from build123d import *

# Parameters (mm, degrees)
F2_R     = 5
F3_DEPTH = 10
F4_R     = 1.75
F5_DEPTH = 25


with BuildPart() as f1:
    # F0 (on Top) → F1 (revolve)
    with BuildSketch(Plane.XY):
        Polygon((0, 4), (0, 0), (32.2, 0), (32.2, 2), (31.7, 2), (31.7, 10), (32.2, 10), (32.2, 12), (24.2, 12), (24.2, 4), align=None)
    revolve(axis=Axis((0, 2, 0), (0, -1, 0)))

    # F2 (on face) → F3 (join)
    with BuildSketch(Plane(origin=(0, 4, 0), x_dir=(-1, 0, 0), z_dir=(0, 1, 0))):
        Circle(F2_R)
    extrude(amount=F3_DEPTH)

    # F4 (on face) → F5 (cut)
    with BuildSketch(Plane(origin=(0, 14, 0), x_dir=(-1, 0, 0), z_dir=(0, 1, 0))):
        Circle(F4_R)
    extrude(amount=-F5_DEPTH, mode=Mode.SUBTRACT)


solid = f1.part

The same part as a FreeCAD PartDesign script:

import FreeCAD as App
import Part
import Sketcher
Q = App.Units.Quantity

doc = App.newDocument("Part")
body = doc.addObject("PartDesign::Body", "Body")

# Sketch on XY plane
sketch1 = body.newObject("Sketcher::SketchObject", "Sketch")
sketch1.AttachmentSupport = (doc.getObject("XY_Plane"), [""])
sketch1.MapMode = "FlatFace"
sketch1.addGeometry([
    Part.LineSegment(App.Vector(0, 4, 0), App.Vector(0, 0, 0)),  # 0
    Part.LineSegment(App.Vector(0, 0, 0), App.Vector(32.2, 0, 0)),  # 1
    Part.LineSegment(App.Vector(32.2, 0, 0), App.Vector(32.2, 2, 0)),  # 2
    Part.LineSegment(App.Vector(32.2, 2, 0), App.Vector(31.7, 2, 0)),  # 3
    Part.LineSegment(App.Vector(31.7, 2, 0), App.Vector(31.7, 10, 0)),  # 4
    Part.LineSegment(App.Vector(31.7, 10, 0), App.Vector(32.2, 10, 0)),  # 5
    Part.LineSegment(App.Vector(32.2, 10, 0), App.Vector(32.2, 12, 0)),  # 6
    Part.LineSegment(App.Vector(32.2, 12, 0), App.Vector(24.2, 12, 0)),  # 7
    Part.LineSegment(App.Vector(24.2, 12, 0), App.Vector(24.2, 4, 0)),  # 8
    Part.LineSegment(App.Vector(24.2, 4, 0), App.Vector(0, 4, 0)),  # 9
], False)
sketch1.addConstraint([
    Sketcher.Constraint("Coincident", 0, 2, 1, 1),
    Sketcher.Constraint("Coincident", 1, 2, 2, 1),
    Sketcher.Constraint("Coincident", 2, 2, 3, 1),
    Sketcher.Constraint("Coincident", 3, 2, 4, 1),
    Sketcher.Constraint("Coincident", 4, 2, 5, 1),
    Sketcher.Constraint("Coincident", 5, 2, 6, 1),
    Sketcher.Constraint("Coincident", 6, 2, 7, 1),
    Sketcher.Constraint("Coincident", 7, 2, 8, 1),
    Sketcher.Constraint("Coincident", 8, 2, 9, 1),
    Sketcher.Constraint("Coincident", 9, 2, 0, 1),
    Sketcher.Constraint("Vertical", 0),
    Sketcher.Constraint("Horizontal", 1),
    Sketcher.Constraint("Vertical", 2),
    Sketcher.Constraint("Horizontal", 3),
    Sketcher.Constraint("Vertical", 4),
    Sketcher.Constraint("Horizontal", 5),
    Sketcher.Constraint("Vertical", 6),
    Sketcher.Constraint("Horizontal", 7),
    Sketcher.Constraint("Vertical", 8),
    Sketcher.Constraint("Horizontal", 9),
    Sketcher.Constraint("Coincident", 0, 2, -1, 1),
    Sketcher.Constraint("Vertical", 2, 2, 5, 2),
    Sketcher.Constraint("Equal", 7, 4),
    Sketcher.Constraint("Equal", 2, 6),
    Sketcher.Constraint("Equal", 4, 8),
    Sketcher.Constraint("DistanceX", 7, 2, 7, 1, Q("8 mm")),
    Sketcher.Constraint("DistanceY", 0, 2, 0, 1, Q("4 mm")),
    Sketcher.Constraint("DistanceX", 1, 1, 1, 2, Q("32.2 mm")),
    Sketcher.Constraint("DistanceX", 3, 2, 3, 1, Q("0.5 mm")),
])
revolution = body.newObject("PartDesign::Revolution", "Revolution")
revolution.Profile = sketch1
revolution.ReferenceAxis = (sketch1, ["V_Axis"])
revolution.Angle = 360

# Sketch on XZ plane
sketch2 = body.newObject("Sketcher::SketchObject", "Sketch001")
sketch2.AttachmentSupport = (doc.getObject("XZ_Plane"), [""])
sketch2.MapMode = "FlatFace"
sketch2.AttachmentOffset = App.Placement(App.Vector(0, 0, -4), App.Rotation())
sketch2.addGeometry(Part.Circle(App.Vector(0, 0, 0), App.Vector(0, 0, 1), 5), False)
sketch2.addConstraint([
    Sketcher.Constraint("Coincident", 0, 3, -1, 1),
    Sketcher.Constraint("Diameter", 0, Q("10 mm")),
])
pad1 = body.newObject("PartDesign::Pad", "Pad")
pad1.Profile = sketch2
pad1.Length = 10
pad1.Reversed = True

# Sketch on XZ plane
sketch3 = body.newObject("Sketcher::SketchObject", "Sketch002")
sketch3.AttachmentSupport = (doc.getObject("XZ_Plane"), [""])
sketch3.MapMode = "FlatFace"
sketch3.AttachmentOffset = App.Placement(App.Vector(0, 0, -14), App.Rotation())
sketch3.addGeometry(Part.Circle(App.Vector(0, 0, 0), App.Vector(0, 0, 1), 1.8), False)
sketch3.addConstraint([
    Sketcher.Constraint("Coincident", 0, 3, -1, 1),
    Sketcher.Constraint("Diameter", 0, Q("3.5 mm")),
])
pocket1 = body.newObject("PartDesign::Pocket", "Pocket")
pocket1.Profile = sketch3
pocket1.Length = 25
pocket1.Reversed = True

doc.recompute()
